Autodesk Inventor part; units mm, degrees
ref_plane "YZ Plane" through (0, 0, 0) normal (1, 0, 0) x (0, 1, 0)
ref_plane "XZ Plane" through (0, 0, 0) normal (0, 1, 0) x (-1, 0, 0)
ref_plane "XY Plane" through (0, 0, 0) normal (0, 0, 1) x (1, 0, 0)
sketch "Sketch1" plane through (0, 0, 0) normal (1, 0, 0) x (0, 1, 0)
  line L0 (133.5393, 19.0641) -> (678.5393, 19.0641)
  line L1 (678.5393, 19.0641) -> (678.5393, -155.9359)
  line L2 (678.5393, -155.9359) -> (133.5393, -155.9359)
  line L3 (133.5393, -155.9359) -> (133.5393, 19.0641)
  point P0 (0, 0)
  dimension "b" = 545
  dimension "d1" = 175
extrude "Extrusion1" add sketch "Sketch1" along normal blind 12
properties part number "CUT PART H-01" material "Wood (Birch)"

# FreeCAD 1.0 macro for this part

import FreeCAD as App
import Part
import Sketcher

V = App.Vector
Q = App.Units.Quantity

doc = App.newDocument("Part")
body = doc.addObject("PartDesign::Body", "Body")

# Sketch on YZ plane
sketch1 = body.newObject("Sketcher::SketchObject", "Sketch")
sketch1.AttachmentSupport = (doc.getObject("YZ_Plane"), [""])
sketch1.MapMode = "FlatFace"
sketch1.addGeometry([
    Part.LineSegment(V(679, 19, 0), V(134, 19, 0)),
    Part.LineSegment(V(134, 19, 0), V(134, -156, 0)),
    Part.LineSegment(V(134, -156, 0), V(679, -156, 0)),
    Part.LineSegment(V(679, -156, 0), V(679, 19, 0)),
], False)
sketch1.addConstraint([
    Sketcher.Constraint("Coincident", 0, 2, 1, 1),
    Sketcher.Constraint("Coincident", 1, 2, 2, 1),
    Sketcher.Constraint("Coincident", 2, 2, 3, 1),
    Sketcher.Constraint("Coincident", 3, 2, 0, 1),
    Sketcher.Constraint("Horizontal", 0),
    Sketcher.Constraint("Vertical", 1),
    Sketcher.Constraint("Horizontal", 2),
    Sketcher.Constraint("Vertical", 3),
    Sketcher.Constraint("DistanceX", 0, 2, 0, 1, Q("545 mm")),
    Sketcher.Constraint("DistanceY", 1, 2, 1, 1, Q("175 mm")),
    Sketcher.Constraint("DistanceY", -1, 1, 0, 2, Q("19.064 mm")),
    Sketcher.Constraint("DistanceX", -1, 1, 0, 2, Q("133.5393 mm")),
])
pad1 = body.newObject("PartDesign::Pad", "Pad")
pad1.Profile = sketch1
pad1.Length = 12

doc.recompute()
